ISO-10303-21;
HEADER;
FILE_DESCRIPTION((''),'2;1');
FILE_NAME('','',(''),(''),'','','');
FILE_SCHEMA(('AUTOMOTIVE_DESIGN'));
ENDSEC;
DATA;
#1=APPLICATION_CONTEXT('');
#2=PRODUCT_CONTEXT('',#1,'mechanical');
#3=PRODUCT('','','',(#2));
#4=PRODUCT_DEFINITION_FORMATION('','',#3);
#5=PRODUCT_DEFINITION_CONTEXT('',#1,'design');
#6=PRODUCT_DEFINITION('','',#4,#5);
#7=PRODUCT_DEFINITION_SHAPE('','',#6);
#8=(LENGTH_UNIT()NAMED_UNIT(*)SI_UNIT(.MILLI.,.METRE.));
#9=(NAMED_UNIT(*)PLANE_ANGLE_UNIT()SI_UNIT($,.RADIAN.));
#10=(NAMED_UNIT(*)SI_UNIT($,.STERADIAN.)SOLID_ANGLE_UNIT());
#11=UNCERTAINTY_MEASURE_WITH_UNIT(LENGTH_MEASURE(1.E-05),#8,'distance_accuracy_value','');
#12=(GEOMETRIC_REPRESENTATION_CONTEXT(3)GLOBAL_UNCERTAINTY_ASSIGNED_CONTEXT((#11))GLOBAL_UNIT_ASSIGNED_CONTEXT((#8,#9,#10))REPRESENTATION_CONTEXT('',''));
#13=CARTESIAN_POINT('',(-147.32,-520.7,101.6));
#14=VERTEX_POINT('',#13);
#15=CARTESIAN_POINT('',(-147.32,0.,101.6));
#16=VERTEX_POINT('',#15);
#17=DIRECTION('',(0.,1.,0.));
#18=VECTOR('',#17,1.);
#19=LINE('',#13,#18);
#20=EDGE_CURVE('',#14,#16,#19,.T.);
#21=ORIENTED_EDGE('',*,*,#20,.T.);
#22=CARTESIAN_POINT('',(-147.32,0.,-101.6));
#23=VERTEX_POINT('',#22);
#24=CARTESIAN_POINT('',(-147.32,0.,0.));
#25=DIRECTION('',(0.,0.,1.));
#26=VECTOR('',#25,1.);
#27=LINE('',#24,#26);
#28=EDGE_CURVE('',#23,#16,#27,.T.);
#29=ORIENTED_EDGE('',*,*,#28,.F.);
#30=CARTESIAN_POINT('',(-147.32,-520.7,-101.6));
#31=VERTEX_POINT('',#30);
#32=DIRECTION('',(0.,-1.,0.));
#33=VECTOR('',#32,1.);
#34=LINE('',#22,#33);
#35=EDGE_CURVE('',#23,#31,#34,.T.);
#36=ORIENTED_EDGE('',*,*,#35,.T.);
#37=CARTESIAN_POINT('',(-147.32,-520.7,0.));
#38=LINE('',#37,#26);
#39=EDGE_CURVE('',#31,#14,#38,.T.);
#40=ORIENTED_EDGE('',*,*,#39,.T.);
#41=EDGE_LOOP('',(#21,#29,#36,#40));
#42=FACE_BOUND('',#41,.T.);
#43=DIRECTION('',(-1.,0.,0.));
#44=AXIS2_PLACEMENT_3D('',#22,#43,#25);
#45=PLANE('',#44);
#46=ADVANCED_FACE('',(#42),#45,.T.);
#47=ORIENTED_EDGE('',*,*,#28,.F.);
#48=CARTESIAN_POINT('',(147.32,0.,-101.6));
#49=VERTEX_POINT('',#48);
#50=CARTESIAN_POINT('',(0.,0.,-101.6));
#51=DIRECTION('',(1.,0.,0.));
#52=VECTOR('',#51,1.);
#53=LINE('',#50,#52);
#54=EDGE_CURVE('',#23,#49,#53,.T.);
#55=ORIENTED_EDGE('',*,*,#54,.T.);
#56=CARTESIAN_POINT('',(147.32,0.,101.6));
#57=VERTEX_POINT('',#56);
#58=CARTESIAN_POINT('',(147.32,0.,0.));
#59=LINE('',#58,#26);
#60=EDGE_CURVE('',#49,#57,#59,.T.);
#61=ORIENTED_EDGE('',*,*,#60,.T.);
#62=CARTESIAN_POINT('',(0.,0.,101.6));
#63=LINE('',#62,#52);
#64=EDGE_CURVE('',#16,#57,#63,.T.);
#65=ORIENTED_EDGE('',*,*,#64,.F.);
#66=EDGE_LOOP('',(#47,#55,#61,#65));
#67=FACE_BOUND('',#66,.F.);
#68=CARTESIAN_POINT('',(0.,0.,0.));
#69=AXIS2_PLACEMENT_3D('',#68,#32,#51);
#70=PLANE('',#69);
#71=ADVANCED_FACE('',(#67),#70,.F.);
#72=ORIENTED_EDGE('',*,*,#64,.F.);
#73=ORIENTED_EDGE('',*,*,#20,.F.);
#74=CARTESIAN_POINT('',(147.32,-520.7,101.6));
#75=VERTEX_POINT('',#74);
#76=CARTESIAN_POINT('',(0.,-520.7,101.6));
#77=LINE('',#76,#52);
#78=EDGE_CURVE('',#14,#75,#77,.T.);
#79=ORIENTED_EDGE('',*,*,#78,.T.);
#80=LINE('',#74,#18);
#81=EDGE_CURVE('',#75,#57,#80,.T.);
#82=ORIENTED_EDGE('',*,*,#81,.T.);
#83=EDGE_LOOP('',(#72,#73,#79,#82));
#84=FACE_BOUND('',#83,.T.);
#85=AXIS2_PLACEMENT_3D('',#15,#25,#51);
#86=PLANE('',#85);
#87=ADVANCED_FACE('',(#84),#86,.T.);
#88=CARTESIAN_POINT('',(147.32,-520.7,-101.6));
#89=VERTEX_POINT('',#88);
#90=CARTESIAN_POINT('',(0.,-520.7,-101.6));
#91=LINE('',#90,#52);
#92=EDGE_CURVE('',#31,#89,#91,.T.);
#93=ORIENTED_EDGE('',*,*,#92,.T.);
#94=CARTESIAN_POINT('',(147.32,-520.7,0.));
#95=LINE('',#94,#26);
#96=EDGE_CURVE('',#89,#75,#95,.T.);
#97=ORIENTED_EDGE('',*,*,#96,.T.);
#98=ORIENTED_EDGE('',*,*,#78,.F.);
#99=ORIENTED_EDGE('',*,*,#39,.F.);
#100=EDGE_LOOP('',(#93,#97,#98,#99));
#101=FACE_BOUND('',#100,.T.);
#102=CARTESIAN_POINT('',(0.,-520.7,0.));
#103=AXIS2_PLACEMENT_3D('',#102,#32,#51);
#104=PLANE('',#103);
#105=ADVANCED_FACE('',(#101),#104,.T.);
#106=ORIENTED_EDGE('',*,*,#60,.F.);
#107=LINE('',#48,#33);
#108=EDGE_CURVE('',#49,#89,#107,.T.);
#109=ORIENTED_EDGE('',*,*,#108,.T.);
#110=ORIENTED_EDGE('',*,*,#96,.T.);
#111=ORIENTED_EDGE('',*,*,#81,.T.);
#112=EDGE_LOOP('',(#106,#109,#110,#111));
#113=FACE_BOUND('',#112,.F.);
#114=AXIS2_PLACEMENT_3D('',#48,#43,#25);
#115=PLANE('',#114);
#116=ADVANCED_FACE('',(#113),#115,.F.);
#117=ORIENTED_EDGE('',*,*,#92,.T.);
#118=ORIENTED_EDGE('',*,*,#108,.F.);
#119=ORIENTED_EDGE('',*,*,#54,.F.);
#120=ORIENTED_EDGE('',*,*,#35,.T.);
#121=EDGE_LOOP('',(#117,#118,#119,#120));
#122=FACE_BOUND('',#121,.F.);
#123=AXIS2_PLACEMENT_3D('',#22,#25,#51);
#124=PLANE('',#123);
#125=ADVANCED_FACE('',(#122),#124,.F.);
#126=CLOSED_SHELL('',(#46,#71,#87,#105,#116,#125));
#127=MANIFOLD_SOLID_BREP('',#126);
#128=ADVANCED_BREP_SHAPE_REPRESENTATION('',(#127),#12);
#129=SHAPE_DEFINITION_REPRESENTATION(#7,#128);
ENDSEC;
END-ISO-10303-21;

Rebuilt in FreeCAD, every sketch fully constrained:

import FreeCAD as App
import Part
import Sketcher
Q = App.Units.Quantity


def add_polygon(sketch, points):
    """Adds a closed chain of lines whose ends are joined by coincident constraints."""
    first, n = sketch.GeometryCount, len(points)
    for a, b in zip(points, points[1:] + points[:1]):
        sketch.addGeometry(Part.LineSegment(App.Vector(*a, 0), App.Vector(*b, 0)), False)
    for i in range(n):
        sketch.addConstraint(Sketcher.Constraint("Coincident", first + i, 2, first + (i + 1) % n, 1))

doc = App.newDocument("Part")
body = doc.addObject("PartDesign::Body", "Body")

# Sketch on XZ plane
sketch1 = body.newObject("Sketcher::SketchObject", "Sketch")
sketch1.AttachmentSupport = (doc.getObject("XZ_Plane"), [""])
sketch1.MapMode = "FlatFace"
add_polygon(sketch1, [(-147, 102), (-147, -102), (147, -102), (147, 102)])  # lines 0-3
sketch1.addConstraint(Sketcher.Constraint("Vertical", 0))
sketch1.addConstraint(Sketcher.Constraint("Horizontal", 1))
sketch1.addConstraint(Sketcher.Constraint("Vertical", 2))
sketch1.addConstraint(Sketcher.Constraint("Horizontal", 3))
sketch1.addConstraint(Sketcher.Constraint("Symmetric", 0, 2, 2, 2, -1, 1))
sketch1.addConstraint(Sketcher.Constraint("DistanceY", 0, 2, 0, 1, Q("8 in")))
sketch1.addConstraint(Sketcher.Constraint("DistanceX", 1, 1, 1, 2, Q("11.6 in")))
pad1 = body.newObject("PartDesign::Pad", "Pad")
pad1.Profile = sketch1
pad1.Length = Q("20.5 in")

# Sketch on XZ plane
sketch2 = body.newObject("Sketcher::SketchObject", "Sketch001")
sketch2.AttachmentSupport = (doc.getObject("XZ_Plane"), [""])
sketch2.MapMode = "FlatFace"
add_polygon(sketch2, [(-147, 102), (-147, -102), (147, -102), (147, 102)])  # lines 0-3
sketch2.addConstraint(Sketcher.Constraint("Vertical", 0))
sketch2.addConstraint(Sketcher.Constraint("Horizontal", 1))
sketch2.addConstraint(Sketcher.Constraint("Vertical", 2))
sketch2.addConstraint(Sketcher.Constraint("Horizontal", 3))
sketch2.addConstraint(Sketcher.Constraint("Symmetric", 0, 2, 2, 2, -1, 1))
sketch2.addConstraint(Sketcher.Constraint("DistanceY", 0, 2, 0, 1, Q("8 in")))
sketch2.addConstraint(Sketcher.Constraint("DistanceX", 1, 1, 1, 2, Q("11.6 in")))
pad2 = body.newObject("PartDesign::Pad", "Pad001")
pad2.Profile = sketch2
pad2.Length = Q("2.75 in")

doc.recompute()
